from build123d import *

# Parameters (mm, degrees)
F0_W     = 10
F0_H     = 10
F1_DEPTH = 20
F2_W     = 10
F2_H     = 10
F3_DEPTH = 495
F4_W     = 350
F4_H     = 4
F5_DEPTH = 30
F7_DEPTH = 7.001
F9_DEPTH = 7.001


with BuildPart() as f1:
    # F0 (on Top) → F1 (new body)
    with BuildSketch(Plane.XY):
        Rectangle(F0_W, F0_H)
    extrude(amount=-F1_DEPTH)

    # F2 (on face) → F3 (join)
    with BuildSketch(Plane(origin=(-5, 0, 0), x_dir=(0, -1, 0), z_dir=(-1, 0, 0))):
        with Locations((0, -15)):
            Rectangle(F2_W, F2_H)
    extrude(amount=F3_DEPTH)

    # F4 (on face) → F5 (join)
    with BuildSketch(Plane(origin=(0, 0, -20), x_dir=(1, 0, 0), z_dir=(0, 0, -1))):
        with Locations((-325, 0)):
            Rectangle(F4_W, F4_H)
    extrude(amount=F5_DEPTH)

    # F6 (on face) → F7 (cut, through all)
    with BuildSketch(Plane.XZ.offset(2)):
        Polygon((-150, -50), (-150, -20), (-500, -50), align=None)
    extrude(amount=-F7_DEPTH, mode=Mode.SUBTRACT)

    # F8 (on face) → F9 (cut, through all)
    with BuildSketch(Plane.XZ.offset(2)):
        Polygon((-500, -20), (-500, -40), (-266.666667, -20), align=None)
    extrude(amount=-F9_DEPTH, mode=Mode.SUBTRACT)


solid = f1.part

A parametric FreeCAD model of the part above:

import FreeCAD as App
import Part
import Sketcher

V = App.Vector
Q = App.Units.Quantity

doc = App.newDocument("Part")
body = doc.addObject("PartDesign::Body", "Body")

sketch1 = body.newObject("Sketcher::SketchObject", "Sketch")
sketch1.AttachmentSupport = (doc.getObject("XY_Plane"), [""])
sketch1.MapMode = "FlatFace"
sketch1.addGeometry(Part.LineSegment(V(-5, 5, 0), V(-5, -5, 0)), False)
sketch1.addGeometry(Part.LineSegment(V(-5, -5, 0), V(5, -5, 0)), False)
sketch1.addGeometry(Part.LineSegment(V(5, -5, 0), V(5, 5, 0)), False)
sketch1.addGeometry(Part.LineSegment(V(5, 5, 0), V(-5, 5, 0)), False)
sketch1.addConstraint(Sketcher.Constraint("Coincident", 0, 2, 1, 1))
sketch1.addConstraint(Sketcher.Constraint("Coincident", 1, 2, 2, 1))
sketch1.addConstraint(Sketcher.Constraint("Coincident", 2, 2, 3, 1))
sketch1.addConstraint(Sketcher.Constraint("Coincident", 3, 2, 0, 1))
sketch1.addConstraint(Sketcher.Constraint("Vertical", 0))
sketch1.addConstraint(Sketcher.Constraint("Horizontal", 1))
sketch1.addConstraint(Sketcher.Constraint("Vertical", 2))
sketch1.addConstraint(Sketcher.Constraint("Horizontal", 3))
sketch1.addConstraint(Sketcher.Constraint("Symmetric", 0, 2, 2, 2, -1, 1))
sketch1.addConstraint(Sketcher.Constraint("Equal", 3, 0))
sketch1.addConstraint(Sketcher.Constraint("DistanceX", 1, 1, 1, 2, Q("10 mm")))
pad1 = body.newObject("PartDesign::Pad", "Pad")
pad1.Profile = sketch1
pad1.Length = 20
pad1.Reversed = True

sketch2 = body.newObject("Sketcher::SketchObject", "Sketch001")
sketch2.AttachmentSupport = (doc.getObject("YZ_Plane"), [""])
sketch2.MapMode = "FlatFace"
sketch2.AttachmentOffset = App.Placement(V(0, 0, -5), App.Rotation())
sketch2.addGeometry(Part.LineSegment(V(5, -10, 0), V(5, -20, 0)), False)
sketch2.addGeometry(Part.LineSegment(V(5, -20, 0), V(-5, -20, 0)), False)
sketch2.addGeometry(Part.LineSegment(V(-5, -20, 0), V(-5, -10, 0)), False)
sketch2.addGeometry(Part.LineSegment(V(-5, -10, 0), V(5, -10, 0)), False)
sketch2.addConstraint(Sketcher.Constraint("Coincident", 0, 2, 1, 1))
sketch2.addConstraint(Sketcher.Constraint("Coincident", 1, 2, 2, 1))
sketch2.addConstraint(Sketcher.Constraint("Coincident", 2, 2, 3, 1))
sketch2.addConstraint(Sketcher.Constraint("Coincident", 3, 2, 0, 1))
sketch2.addConstraint(Sketcher.Constraint("Vertical", 0))
sketch2.addConstraint(Sketcher.Constraint("Horizontal", 1))
sketch2.addConstraint(Sketcher.Constraint("Vertical", 2))
sketch2.addConstraint(Sketcher.Constraint("Horizontal", 3))
sketch2.addConstraint(Sketcher.Constraint("Equal", 3, 0))
sketch2.addConstraint(Sketcher.Constraint("DistanceX", 1, 2, 1, 1, Q("10 mm")))
sketch2.addConstraint(Sketcher.Constraint("DistanceX", -1, 1, 0, 2, Q("5 mm")))
sketch2.addConstraint(Sketcher.Constraint("DistanceY", 0, 2, -1, 1, Q("20 mm")))
pad2 = body.newObject("PartDesign::Pad", "Pad001")
pad2.Profile = sketch2
pad2.Length = 495
pad2.Reversed = True

sketch3 = body.newObject("Sketcher::SketchObject", "Sketch002")
sketch3.AttachmentSupport = (doc.getObject("XY_Plane"), [""])
sketch3.MapMode = "FlatFace"
sketch3.AttachmentOffset = App.Placement(V(0, 0, -20), App.Rotation())
sketch3.addGeometry(Part.LineSegment(V(-500, -2, 0), V(-500, 2, 0)), False)
sketch3.addGeometry(Part.LineSegment(V(-500, 2, 0), V(-150, 2, 0)), False)
sketch3.addGeometry(Part.LineSegment(V(-150, 2, 0), V(-150, -2, 0)), False)
sketch3.addGeometry(Part.LineSegment(V(-150, -2, 0), V(-500, -2, 0)), False)
sketch3.addConstraint(Sketcher.Constraint("Coincident", 0, 2, 1, 1))
sketch3.addConstraint(Sketcher.Constraint("Coincident", 1, 2, 2, 1))
sketch3.addConstraint(Sketcher.Constraint("Coincident", 2, 2, 3, 1))
sketch3.addConstraint(Sketcher.Constraint("Coincident", 3, 2, 0, 1))
sketch3.addConstraint(Sketcher.Constraint("Vertical", 0))
sketch3.addConstraint(Sketcher.Constraint("Horizontal", 1))
sketch3.addConstraint(Sketcher.Constraint("Vertical", 2))
sketch3.addConstraint(Sketcher.Constraint("Horizontal", 3))
sketch3.addConstraint(Sketcher.Constraint("DistanceX", 1, 1, 1, 2, Q("350 mm")))
sketch3.addConstraint(Sketcher.Constraint("DistanceY", 0, 1, 0, 2, Q("4 mm")))
sketch3.addConstraint(Sketcher.Constraint("DistanceX", 0, 2, -1, 1, Q("500 mm")))
sketch3.addConstraint(Sketcher.Constraint("DistanceY", -1, 1, 0, 2, Q("2 mm")))
pad3 = body.newObject("PartDesign::Pad", "Pad002")
pad3.Profile = sketch3
pad3.Length = 30
pad3.Reversed = True

sketch4 = body.newObject("Sketcher::SketchObject", "Sketch003")
sketch4.AttachmentSupport = (doc.getObject("XZ_Plane"), [""])
sketch4.MapMode = "FlatFace"
sketch4.AttachmentOffset = App.Placement(V(0, 0, 2), App.Rotation())
sketch4.addGeometry(Part.LineSegment(V(-150, -50, 0), V(-150, -20, 0)), False)
sketch4.addGeometry(Part.LineSegment(V(-150, -20, 0), V(-500, -50, 0)), False)
sketch4.addGeometry(Part.LineSegment(V(-500, -50, 0), V(-150, -50, 0)), False)
sketch4.addConstraint(Sketcher.Constraint("Coincident", 0, 2, 1, 1))
sketch4.addConstraint(Sketcher.Constraint("Coincident", 1, 2, 2, 1))
sketch4.addConstraint(Sketcher.Constraint("Coincident", 2, 2, 0, 1))
sketch4.addConstraint(Sketcher.Constraint("Vertical", 0))
sketch4.addConstraint(Sketcher.Constraint("Horizontal", 2))
sketch4.addConstraint(Sketcher.Constraint("DistanceX", 2, 1, 2, 2, Q("350 mm")))
sketch4.addConstraint(Sketcher.Constraint("DistanceY", 0, 1, 0, 2, Q("30 mm")))
sketch4.addConstraint(Sketcher.Constraint("DistanceX", 0, 2, -1, 1, Q("150 mm")))
sketch4.addConstraint(Sketcher.Constraint("DistanceY", 0, 2, -1, 1, Q("20 mm")))
pocket1 = body.newObject("PartDesign::Pocket", "Pocket")
pocket1.Profile = sketch4
pocket1.Type = "ThroughAll"

sketch5 = body.newObject("Sketcher::SketchObject", "Sketch004")
sketch5.AttachmentSupport = (doc.getObject("XZ_Plane"), [""])
sketch5.MapMode = "FlatFace"
sketch5.AttachmentOffset = App.Placement(V(0, 0, 2), App.Rotation())
sketch5.addGeometry(Part.LineSegment(V(-500, -20, 0), V(-500, -40, 0)), False)
sketch5.addGeometry(Part.LineSegment(V(-500, -40, 0), V(-267, -20, 0)), False)
sketch5.addGeometry(Part.LineSegment(V(-267, -20, 0), V(-500, -20, 0)), False)
sketch5.addConstraint(Sketcher.Constraint("Coincident", 0, 2, 1, 1))
sketch5.addConstraint(Sketcher.Constraint("Coincident", 1, 2, 2, 1))
sketch5.addConstraint(Sketcher.Constraint("Coincident", 2, 2, 0, 1))
sketch5.addConstraint(Sketcher.Constraint("Vertical", 0))
sketch5.addConstraint(Sketcher.Constraint("Horizontal", 2))
sketch5.addConstraint(Sketcher.Constraint("DistanceY", 0, 2, 0, 1, Q("20 mm")))
sketch5.addConstraint(Sketcher.Constraint("DistanceX", 0, 2, -1, 1, Q("500 mm")))
sketch5.addConstraint(Sketcher.Constraint("DistanceY", 0, 2, -1, 1, Q("40 mm")))
sketch5.addConstraint(Sketcher.Constraint("DistanceX", 2, 2, 2, 1, Q("233.333333 mm")))
pocket2 = body.newObject("PartDesign::Pocket", "Pocket001")
pocket2.Profile = sketch5
pocket2.Type = "ThroughAll"

doc.recompute()
